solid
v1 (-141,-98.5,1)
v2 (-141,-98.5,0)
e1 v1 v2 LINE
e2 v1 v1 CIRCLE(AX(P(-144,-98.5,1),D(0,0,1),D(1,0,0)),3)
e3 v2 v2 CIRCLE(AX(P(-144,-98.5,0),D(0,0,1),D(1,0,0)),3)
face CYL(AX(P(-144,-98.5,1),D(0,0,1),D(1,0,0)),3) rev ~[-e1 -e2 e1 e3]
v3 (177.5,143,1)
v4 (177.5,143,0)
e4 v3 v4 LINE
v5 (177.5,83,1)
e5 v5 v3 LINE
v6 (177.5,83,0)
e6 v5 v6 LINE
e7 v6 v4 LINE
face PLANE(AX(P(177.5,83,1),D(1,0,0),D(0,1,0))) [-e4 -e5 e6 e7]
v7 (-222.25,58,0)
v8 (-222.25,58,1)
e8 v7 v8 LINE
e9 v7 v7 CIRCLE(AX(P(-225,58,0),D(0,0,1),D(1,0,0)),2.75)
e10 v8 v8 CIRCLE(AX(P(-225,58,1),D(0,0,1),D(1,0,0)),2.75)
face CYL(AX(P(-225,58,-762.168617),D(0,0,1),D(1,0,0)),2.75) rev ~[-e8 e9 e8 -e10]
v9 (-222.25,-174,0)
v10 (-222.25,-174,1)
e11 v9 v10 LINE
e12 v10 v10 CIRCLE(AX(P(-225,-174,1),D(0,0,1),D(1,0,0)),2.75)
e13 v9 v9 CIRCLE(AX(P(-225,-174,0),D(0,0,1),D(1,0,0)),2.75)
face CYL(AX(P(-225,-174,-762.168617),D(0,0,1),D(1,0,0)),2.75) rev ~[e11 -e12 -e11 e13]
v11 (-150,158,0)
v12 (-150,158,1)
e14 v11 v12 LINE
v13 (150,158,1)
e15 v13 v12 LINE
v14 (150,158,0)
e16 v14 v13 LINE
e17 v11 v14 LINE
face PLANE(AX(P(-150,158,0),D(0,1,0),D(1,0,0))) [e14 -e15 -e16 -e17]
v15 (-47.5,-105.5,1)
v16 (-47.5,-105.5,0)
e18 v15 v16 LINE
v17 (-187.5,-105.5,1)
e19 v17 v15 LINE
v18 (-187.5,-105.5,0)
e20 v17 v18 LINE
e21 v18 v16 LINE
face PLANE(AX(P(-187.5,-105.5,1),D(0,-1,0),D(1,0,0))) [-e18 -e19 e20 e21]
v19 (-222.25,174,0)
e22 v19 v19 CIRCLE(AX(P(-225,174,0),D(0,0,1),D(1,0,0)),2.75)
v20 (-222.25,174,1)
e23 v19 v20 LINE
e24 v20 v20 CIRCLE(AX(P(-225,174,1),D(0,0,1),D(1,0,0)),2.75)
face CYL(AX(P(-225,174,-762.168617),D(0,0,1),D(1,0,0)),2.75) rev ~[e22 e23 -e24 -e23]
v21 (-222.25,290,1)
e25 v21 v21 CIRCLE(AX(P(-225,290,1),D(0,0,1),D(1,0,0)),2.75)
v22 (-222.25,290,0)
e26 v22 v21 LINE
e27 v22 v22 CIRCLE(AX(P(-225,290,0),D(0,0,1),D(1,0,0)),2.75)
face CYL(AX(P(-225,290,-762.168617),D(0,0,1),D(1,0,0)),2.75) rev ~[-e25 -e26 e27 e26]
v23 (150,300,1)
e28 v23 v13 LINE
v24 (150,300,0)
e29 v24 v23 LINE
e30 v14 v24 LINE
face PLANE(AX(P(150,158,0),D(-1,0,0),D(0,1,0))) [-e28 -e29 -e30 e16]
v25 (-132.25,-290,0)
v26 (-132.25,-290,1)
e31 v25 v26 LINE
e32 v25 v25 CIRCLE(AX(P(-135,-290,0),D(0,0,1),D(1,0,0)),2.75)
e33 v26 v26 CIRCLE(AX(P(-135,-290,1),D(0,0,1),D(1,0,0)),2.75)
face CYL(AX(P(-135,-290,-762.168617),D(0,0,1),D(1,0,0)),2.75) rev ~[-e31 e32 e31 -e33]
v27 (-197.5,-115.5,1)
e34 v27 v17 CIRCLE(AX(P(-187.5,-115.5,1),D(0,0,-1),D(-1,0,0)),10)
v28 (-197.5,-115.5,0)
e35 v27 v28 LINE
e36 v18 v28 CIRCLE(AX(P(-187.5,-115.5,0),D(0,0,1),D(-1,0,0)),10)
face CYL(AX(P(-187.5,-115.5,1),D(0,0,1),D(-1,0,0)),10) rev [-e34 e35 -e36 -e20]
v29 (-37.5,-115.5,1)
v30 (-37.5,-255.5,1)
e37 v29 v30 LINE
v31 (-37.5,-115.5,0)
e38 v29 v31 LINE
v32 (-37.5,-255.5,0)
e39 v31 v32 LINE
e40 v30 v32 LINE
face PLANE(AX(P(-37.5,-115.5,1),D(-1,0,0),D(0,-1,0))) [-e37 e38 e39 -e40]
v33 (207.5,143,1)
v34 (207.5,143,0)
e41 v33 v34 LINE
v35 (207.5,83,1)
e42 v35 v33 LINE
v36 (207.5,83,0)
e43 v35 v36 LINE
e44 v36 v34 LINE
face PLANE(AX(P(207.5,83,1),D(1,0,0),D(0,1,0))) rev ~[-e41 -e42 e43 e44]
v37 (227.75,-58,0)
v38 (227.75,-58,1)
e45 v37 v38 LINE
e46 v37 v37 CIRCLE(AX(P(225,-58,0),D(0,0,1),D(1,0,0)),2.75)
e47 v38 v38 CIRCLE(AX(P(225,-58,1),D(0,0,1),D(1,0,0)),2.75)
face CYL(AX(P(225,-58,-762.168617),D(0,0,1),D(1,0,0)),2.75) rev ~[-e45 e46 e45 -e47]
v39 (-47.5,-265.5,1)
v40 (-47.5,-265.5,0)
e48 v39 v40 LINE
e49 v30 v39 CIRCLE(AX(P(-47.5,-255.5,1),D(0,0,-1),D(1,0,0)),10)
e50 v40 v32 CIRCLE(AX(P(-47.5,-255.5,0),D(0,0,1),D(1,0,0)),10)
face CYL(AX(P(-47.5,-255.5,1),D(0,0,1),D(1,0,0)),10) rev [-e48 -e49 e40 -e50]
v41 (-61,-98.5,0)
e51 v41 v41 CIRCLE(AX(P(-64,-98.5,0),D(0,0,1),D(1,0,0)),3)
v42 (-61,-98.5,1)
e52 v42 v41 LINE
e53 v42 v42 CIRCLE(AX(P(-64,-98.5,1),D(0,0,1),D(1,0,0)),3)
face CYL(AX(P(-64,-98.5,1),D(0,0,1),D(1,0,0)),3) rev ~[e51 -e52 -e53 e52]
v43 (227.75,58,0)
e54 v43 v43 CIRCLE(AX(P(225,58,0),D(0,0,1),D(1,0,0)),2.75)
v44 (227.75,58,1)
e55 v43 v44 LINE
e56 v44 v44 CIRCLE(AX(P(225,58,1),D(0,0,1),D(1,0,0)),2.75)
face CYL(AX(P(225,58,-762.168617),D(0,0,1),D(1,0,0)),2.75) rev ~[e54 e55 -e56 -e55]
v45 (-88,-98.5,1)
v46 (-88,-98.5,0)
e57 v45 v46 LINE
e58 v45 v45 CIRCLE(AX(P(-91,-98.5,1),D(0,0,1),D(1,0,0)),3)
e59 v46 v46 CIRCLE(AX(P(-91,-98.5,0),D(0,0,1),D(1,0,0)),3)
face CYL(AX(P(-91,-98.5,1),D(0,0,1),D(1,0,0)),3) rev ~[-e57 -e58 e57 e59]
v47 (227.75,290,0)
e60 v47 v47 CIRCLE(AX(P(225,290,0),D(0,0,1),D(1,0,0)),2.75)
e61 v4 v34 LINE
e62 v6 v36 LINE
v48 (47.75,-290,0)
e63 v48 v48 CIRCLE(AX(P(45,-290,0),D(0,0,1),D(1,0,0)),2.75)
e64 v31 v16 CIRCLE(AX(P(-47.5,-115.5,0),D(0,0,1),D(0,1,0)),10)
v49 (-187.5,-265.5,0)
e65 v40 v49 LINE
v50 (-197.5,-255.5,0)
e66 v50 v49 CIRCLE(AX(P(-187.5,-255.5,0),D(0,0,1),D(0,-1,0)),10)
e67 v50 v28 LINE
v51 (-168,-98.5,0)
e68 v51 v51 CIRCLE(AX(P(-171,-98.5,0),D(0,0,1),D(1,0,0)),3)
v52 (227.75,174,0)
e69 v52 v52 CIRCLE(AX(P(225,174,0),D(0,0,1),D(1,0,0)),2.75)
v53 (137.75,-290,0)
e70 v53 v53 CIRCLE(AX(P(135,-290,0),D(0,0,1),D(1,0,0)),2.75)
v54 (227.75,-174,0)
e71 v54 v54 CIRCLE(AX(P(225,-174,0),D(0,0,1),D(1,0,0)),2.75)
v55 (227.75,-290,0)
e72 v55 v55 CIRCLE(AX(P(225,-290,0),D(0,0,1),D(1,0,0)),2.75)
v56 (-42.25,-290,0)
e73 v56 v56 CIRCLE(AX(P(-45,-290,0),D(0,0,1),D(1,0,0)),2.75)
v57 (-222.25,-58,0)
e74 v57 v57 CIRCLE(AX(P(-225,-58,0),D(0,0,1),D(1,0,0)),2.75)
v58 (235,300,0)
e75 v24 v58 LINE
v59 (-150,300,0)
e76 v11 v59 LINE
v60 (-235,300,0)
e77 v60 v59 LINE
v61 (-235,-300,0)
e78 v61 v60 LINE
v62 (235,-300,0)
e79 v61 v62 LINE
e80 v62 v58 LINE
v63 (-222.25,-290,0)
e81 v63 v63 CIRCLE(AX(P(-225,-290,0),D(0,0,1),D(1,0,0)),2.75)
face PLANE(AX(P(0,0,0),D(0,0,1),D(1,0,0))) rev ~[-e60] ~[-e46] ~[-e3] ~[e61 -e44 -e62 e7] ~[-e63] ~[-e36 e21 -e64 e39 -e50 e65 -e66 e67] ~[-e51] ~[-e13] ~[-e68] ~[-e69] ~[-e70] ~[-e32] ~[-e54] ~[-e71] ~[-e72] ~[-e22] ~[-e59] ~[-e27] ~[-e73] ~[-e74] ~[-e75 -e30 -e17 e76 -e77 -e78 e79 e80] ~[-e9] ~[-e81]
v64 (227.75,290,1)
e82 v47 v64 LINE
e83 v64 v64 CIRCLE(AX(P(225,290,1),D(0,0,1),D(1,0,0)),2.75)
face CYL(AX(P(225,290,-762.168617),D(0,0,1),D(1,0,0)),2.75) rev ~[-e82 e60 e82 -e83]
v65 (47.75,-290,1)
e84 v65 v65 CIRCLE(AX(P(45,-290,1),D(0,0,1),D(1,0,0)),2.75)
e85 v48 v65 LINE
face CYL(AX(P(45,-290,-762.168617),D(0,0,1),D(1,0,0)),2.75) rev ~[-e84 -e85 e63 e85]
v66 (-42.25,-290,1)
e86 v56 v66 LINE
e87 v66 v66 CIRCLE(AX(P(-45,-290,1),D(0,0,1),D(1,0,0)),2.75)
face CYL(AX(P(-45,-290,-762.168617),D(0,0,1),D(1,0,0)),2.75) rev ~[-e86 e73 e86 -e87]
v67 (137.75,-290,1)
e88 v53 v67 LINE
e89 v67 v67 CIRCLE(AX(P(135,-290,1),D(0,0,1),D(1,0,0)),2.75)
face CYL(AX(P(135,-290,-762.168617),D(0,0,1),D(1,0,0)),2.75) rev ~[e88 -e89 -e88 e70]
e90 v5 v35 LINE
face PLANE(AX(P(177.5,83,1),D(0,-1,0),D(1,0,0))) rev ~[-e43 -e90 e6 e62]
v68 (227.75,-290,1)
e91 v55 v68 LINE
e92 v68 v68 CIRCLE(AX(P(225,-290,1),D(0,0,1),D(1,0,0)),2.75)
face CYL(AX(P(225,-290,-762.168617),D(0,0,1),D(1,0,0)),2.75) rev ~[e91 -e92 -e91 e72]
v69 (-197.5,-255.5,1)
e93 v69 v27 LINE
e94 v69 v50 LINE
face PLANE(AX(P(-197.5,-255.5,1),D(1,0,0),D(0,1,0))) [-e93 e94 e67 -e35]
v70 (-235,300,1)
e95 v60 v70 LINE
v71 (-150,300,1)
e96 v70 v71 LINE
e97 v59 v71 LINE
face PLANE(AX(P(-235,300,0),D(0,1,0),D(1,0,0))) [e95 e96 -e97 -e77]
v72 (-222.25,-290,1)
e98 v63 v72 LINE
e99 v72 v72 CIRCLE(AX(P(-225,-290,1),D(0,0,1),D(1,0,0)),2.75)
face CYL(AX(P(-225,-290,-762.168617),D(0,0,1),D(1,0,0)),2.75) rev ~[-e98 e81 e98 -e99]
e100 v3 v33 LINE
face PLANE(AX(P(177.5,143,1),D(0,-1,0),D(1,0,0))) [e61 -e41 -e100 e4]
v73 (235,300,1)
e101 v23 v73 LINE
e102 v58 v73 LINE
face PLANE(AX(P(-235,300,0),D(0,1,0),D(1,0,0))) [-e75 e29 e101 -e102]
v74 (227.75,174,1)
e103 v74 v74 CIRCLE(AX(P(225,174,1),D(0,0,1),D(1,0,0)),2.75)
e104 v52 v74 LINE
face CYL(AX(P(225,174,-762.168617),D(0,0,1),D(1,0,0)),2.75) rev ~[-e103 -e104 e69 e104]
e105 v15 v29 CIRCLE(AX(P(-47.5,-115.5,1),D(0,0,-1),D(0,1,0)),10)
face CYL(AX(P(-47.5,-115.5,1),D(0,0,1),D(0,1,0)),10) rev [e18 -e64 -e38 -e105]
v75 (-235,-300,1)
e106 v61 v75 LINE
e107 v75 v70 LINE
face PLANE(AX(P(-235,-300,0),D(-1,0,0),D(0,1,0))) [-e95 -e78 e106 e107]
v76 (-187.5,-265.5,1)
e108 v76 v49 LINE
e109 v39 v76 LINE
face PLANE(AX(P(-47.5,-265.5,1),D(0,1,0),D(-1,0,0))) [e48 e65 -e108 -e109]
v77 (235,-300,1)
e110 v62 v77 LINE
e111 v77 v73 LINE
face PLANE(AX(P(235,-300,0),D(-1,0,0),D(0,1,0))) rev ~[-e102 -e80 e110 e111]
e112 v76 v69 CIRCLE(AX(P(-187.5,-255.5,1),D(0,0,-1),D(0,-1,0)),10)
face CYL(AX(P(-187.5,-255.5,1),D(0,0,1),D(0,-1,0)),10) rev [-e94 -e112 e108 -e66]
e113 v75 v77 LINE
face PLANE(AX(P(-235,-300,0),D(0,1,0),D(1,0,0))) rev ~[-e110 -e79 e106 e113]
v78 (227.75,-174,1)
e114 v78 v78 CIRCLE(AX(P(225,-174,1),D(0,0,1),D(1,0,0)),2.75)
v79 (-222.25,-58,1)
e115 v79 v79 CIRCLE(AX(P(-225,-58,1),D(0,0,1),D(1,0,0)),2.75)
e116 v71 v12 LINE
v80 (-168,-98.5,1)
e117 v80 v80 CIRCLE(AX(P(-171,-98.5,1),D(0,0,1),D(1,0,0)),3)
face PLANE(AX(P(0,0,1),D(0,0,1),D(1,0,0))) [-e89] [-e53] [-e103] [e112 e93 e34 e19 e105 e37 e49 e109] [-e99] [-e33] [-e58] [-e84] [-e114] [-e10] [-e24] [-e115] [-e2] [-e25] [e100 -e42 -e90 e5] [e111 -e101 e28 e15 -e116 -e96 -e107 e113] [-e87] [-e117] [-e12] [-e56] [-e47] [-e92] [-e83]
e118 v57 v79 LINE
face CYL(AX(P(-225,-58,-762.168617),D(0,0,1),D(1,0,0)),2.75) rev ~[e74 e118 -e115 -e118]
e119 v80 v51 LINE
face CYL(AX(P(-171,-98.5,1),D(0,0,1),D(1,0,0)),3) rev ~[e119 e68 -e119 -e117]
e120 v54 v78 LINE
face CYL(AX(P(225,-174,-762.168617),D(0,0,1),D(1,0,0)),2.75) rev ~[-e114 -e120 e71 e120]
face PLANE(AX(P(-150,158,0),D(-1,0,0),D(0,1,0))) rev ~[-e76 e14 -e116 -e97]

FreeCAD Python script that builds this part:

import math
import FreeCAD as App
import Part
import Sketcher


def add_polygon(sketch, points):
    """Adds a closed chain of lines whose ends are joined by coincident constraints."""
    first, n = sketch.GeometryCount, len(points)
    for a, b in zip(points, points[1:] + points[:1]):
        sketch.addGeometry(Part.LineSegment(App.Vector(*a, 0), App.Vector(*b, 0)), False)
    for i in range(n):
        sketch.addConstraint(Sketcher.Constraint("Coincident", first + i, 2, first + (i + 1) % n, 1))

doc = App.newDocument("Part")
params = doc.addObject("Spreadsheet::Sheet", "Params")
for row, (alias, value) in enumerate([
    ("sketch1_width", "470 mm"),
    ("sketch1_height", "600 mm"),
    ("pad1_length", "1 mm"),
    ("sketch2_diameter", "5.5 mm"),
    ("hole_diameter", "5.5 mm"),
    ("sketch3_width", "300 mm"),
    ("sketch3_height", "142 mm"),
    ("pocket1_length", "10 mm"),
    ("sketch4_radius", "10 mm"),
    ("sketch4_width", "30 mm"),
    ("sketch4_width2", "140 mm"),
    ("sketch4_height", "60 mm"),
    ("pocket2_length", "10 mm"),
    ("sketch5_diameter", "6 mm"),
    ("pocket3_length", "10 mm"),
], start=1):
    params.set(f"A{row}", alias)
    params.set(f"B{row}", "=" + value)
    params.setAlias(f"B{row}", alias)

body = doc.addObject("PartDesign::Body", "Body")

sketch1 = body.newObject("Sketcher::SketchObject", "Sketch")
sketch1.AttachmentSupport = (doc.getObject("XY_Plane"), [""])
sketch1.MapMode = "FlatFace"
add_polygon(sketch1, [(-235, 300), (-235, -300), (235, -300), (235, 300)])
sketch1.addConstraint(Sketcher.Constraint("Vertical", 0))
sketch1.addConstraint(Sketcher.Constraint("Horizontal", 1))
sketch1.addConstraint(Sketcher.Constraint("Vertical", 2))
sketch1.addConstraint(Sketcher.Constraint("Horizontal", 3))
sketch1.addConstraint(Sketcher.Constraint("Symmetric", 0, 2, 2, 2, -1, 1))
sketch1.addConstraint(Sketcher.Constraint("DistanceX", 1, 1, 1, 2, 470.0))
sketch1.addConstraint(Sketcher.Constraint("DistanceY", 0, 2, 0, 1, 600.0))
sketch1.setExpression("Constraints[9]", "Params.sketch1_width")
sketch1.setExpression("Constraints[10]", "Params.sketch1_height")
pad1 = body.newObject("PartDesign::Pad", "Pad")
pad1.Profile = sketch1
pad1.setExpression("Length", "Params.pad1_length")

sketch2 = body.newObject("Sketcher::SketchObject", "Sketch001")
sketch2.AttachmentSupport = (doc.getObject("XY_Plane"), [""])
sketch2.MapMode = "FlatFace"
sketch2.addGeometry(Part.Circle(App.Vector(225, 290, 0), App.Vector(0, 0, 1), 2.8), False)
sketch2.addGeometry(Part.Circle(App.Vector(135, 290, 0), App.Vector(0, 0, 1), 2.8), False)
sketch2.addGeometry(Part.Circle(App.Vector(45, 290, 0), App.Vector(0, 0, 1), 2.8), False)
sketch2.addGeometry(Part.Circle(App.Vector(-45, 290, 0), App.Vector(0, 0, 1), 2.8), False)
sketch2.addGeometry(Part.Circle(App.Vector(-135, 290, 0), App.Vector(0, 0, 1), 2.8), False)
sketch2.addGeometry(Part.Circle(App.Vector(-225, 290, 0), App.Vector(0, 0, 1), 2.8), False)
sketch2.addGeometry(Part.Circle(App.Vector(-225, 174, 0), App.Vector(0, 0, 1), 2.8), False)
sketch2.addGeometry(Part.Circle(App.Vector(-225, 58, 0), App.Vector(0, 0, 1), 2.8), False)
sketch2.addGeometry(Part.Circle(App.Vector(-225, -58, 0), App.Vector(0, 0, 1), 2.8), False)
sketch2.addGeometry(Part.Circle(App.Vector(-225, -174, 0), App.Vector(0, 0, 1), 2.8), False)
sketch2.addGeometry(Part.Circle(App.Vector(-225, -290, 0), App.Vector(0, 0, 1), 2.8), False)
sketch2.addGeometry(Part.Circle(App.Vector(225, 174, 0), App.Vector(0, 0, 1), 2.8), False)
sketch2.addGeometry(Part.Circle(App.Vector(225, 58, 0), App.Vector(0, 0, 1), 2.8), False)
sketch2.addGeometry(Part.Circle(App.Vector(225, -58, 0), App.Vector(0, 0, 1), 2.8), False)
sketch2.addGeometry(Part.Circle(App.Vector(225, -174, 0), App.Vector(0, 0, 1), 2.8), False)
sketch2.addGeometry(Part.Circle(App.Vector(225, -290, 0), App.Vector(0, 0, 1), 2.8), False)
sketch2.addGeometry(Part.Circle(App.Vector(135, -290, 0), App.Vector(0, 0, 1), 2.8), False)
sketch2.addGeometry(Part.Circle(App.Vector(45, -290, 0), App.Vector(0, 0, 1), 2.8), False)
sketch2.addGeometry(Part.Circle(App.Vector(-45, -290, 0), App.Vector(0, 0, 1), 2.8), False)
sketch2.addGeometry(Part.Circle(App.Vector(-135, -290, 0), App.Vector(0, 0, 1), 2.8), False)
sketch2.addConstraint(Sketcher.Constraint("Equal", 0, 1))
sketch2.addConstraint(Sketcher.Constraint("Equal", 1, 2))
sketch2.addConstraint(Sketcher.Constraint("Equal", 2, 3))
sketch2.addConstraint(Sketcher.Constraint("Equal", 3, 4))
sketch2.addConstraint(Sketcher.Constraint("Equal", 4, 5))
sketch2.addConstraint(Sketcher.Constraint("Equal", 5, 6))
sketch2.addConstraint(Sketcher.Constraint("Equal", 6, 7))
sketch2.addConstraint(Sketcher.Constraint("Equal", 7, 8))
sketch2.addConstraint(Sketcher.Constraint("Equal", 8, 9))
sketch2.addConstraint(Sketcher.Constraint("Equal", 9, 10))
sketch2.addConstraint(Sketcher.Constraint("Equal", 10, 11))
sketch2.addConstraint(Sketcher.Constraint("Equal", 11, 12))
sketch2.addConstraint(Sketcher.Constraint("Equal", 12, 13))
sketch2.addConstraint(Sketcher.Constraint("Equal", 13, 14))
sketch2.addConstraint(Sketcher.Constraint("Equal", 14, 15))
sketch2.addConstraint(Sketcher.Constraint("Equal", 15, 16))
sketch2.addConstraint(Sketcher.Constraint("Equal", 16, 17))
sketch2.addConstraint(Sketcher.Constraint("Equal", 17, 18))
sketch2.addConstraint(Sketcher.Constraint("Equal", 18, 19))
sketch2.addConstraint(Sketcher.Constraint("Symmetric", 0, 3, 10, 3, -1, 1))
sketch2.addConstraint(Sketcher.Constraint("Symmetric", 9, 3, 11, 3, -1, 1))
sketch2.addConstraint(Sketcher.Constraint("Symmetric", 8, 3, 12, 3, -1, 1))
sketch2.addConstraint(Sketcher.Constraint("Symmetric", 7, 3, 13, 3, -1, 1))
sketch2.addConstraint(Sketcher.Constraint("Symmetric", 6, 3, 14, 3, -1, 1))
sketch2.addConstraint(Sketcher.Constraint("Symmetric", 5, 3, 15, 3, -1, 1))
sketch2.addConstraint(Sketcher.Constraint("Symmetric", 4, 3, 16, 3, -1, 1))
sketch2.addConstraint(Sketcher.Constraint("Symmetric", 3, 3, 17, 3, -1, 1))
sketch2.addConstraint(Sketcher.Constraint("Symmetric", 2, 3, 18, 3, -1, 1))
sketch2.addConstraint(Sketcher.Constraint("Symmetric", 1, 3, 19, 3, -1, 1))
sketch2.addConstraint(Sketcher.Constraint("Symmetric", 2, 3, 3, 3, -2))
sketch2.addConstraint(Sketcher.Constraint("Symmetric", 1, 3, 4, 3, -2))
sketch2.addConstraint(Sketcher.Constraint("Symmetric", 0, 3, 5, 3, -2))
sketch2.addConstraint(Sketcher.Constraint("Symmetric", 6, 3, 11, 3, -2))
sketch2.addConstraint(Sketcher.Constraint("Symmetric", 7, 3, 12, 3, -2))
sketch2.addConstraint(Sketcher.Constraint("Horizontal", 0, 3, 1, 3))
sketch2.addConstraint(Sketcher.Constraint("Horizontal", 1, 3, 2, 3))
sketch2.addConstraint(Sketcher.Constraint("Vertical", 5, 3, 6, 3))
sketch2.addConstraint(Sketcher.Constraint("Vertical", 6, 3, 7, 3))
sketch2.addConstraint(Sketcher.Constraint("Diameter", 0, 5.5))
sketch2.addConstraint(Sketcher.Constraint("DistanceX", -1, 1, 0, 3, 225.0))
sketch2.addConstraint(Sketcher.Constraint("DistanceY", -1, 1, 0, 3, 290.0))
sketch2.addConstraint(Sketcher.Constraint("DistanceX", -1, 1, 1, 3, 135.0))
sketch2.addConstraint(Sketcher.Constraint("DistanceX", -1, 1, 2, 3, 45.0))
sketch2.addConstraint(Sketcher.Constraint("DistanceY", -1, 1, 6, 3, 174.0))
sketch2.addConstraint(Sketcher.Constraint("DistanceY", -1, 1, 7, 3, 58.0))
sketch2.setExpression("Constraints[38]", "Params.sketch2_diameter")
doc.recompute()
hole = body.newObject("PartDesign::Hole", "Hole")
hole.Profile = sketch2
hole.ThreadType = "None"
hole.setExpression("Diameter", "Params.hole_diameter")
hole.DepthType = "ThroughAll"
hole.Reversed = True

sketch3 = body.newObject("Sketcher::SketchObject", "Sketch002")
sketch3.AttachmentSupport = (doc.getObject("XY_Plane"), [""])
sketch3.MapMode = "FlatFace"
add_polygon(sketch3, [(-150, 300), (-150, 158), (150, 158), (150, 300)])
sketch3.addConstraint(Sketcher.Constraint("Vertical", 0))
sketch3.addConstraint(Sketcher.Constraint("Horizontal", 1))
sketch3.addConstraint(Sketcher.Constraint("Vertical", 2))
sketch3.addConstraint(Sketcher.Constraint("Horizontal", 3))
sketch3.addConstraint(Sketcher.Constraint("DistanceX", 1, 1, 1, 2, 300.0))
sketch3.addConstraint(Sketcher.Constraint("DistanceY", 0, 2, 0, 1, 142.0))
sketch3.addConstraint(Sketcher.Constraint("DistanceX", 0, 2, -1, 1, 150.0))
sketch3.addConstraint(Sketcher.Constraint("DistanceY", -1, 1, 0, 2, 158.0))
sketch3.setExpression("Constraints[8]", "Params.sketch3_width")
sketch3.setExpression("Constraints[9]", "Params.sketch3_height")
pocket1 = body.newObject("PartDesign::Pocket", "Pocket")
pocket1.Profile = sketch3
pocket1.setExpression("Length", "Params.pocket1_length")
pocket1.Reversed = True

sketch4 = body.newObject("Sketcher::SketchObject", "Sketch003")
sketch4.AttachmentSupport = (doc.getObject("XY_Plane"), [""])
sketch4.MapMode = "FlatFace"
sketch4.AttachmentOffset = App.Placement(App.Vector(0, 0, 1), App.Rotation())
add_polygon(sketch4, [(178, 143), (178, 83), (208, 83), (208, 143)])
sketch4.addGeometry(Part.LineSegment(App.Vector(-48, -106, 0), App.Vector(-188, -106, 0)), False)
sketch4.addGeometry(Part.ArcOfCircle(Part.Circle(App.Vector(-188, -116, 0), App.Vector(0, 0, 1), 10), math.radians(90), math.radians(180)), False)
sketch4.addGeometry(Part.LineSegment(App.Vector(-198, -116, 0), App.Vector(-198, -256, 0)), False)
sketch4.addGeometry(Part.ArcOfCircle(Part.Circle(App.Vector(-188, -256, 0), App.Vector(0, 0, 1), 10), math.radians(180), math.radians(270)), False)
sketch4.addGeometry(Part.LineSegment(App.Vector(-188, -266, 0), App.Vector(-48, -266, 0)), False)
sketch4.addGeometry(Part.ArcOfCircle(Part.Circle(App.Vector(-48, -256, 0), App.Vector(0, 0, 1), 10), math.radians(-90), math.radians(0)), False)
sketch4.addGeometry(Part.LineSegment(App.Vector(-38, -256, 0), App.Vector(-38, -116, 0)), False)
sketch4.addGeometry(Part.ArcOfCircle(Part.Circle(App.Vector(-48, -116, 0), App.Vector(0, 0, 1), 10), math.radians(0), math.radians(90)), False)
sketch4.addConstraint(Sketcher.Constraint("Tangent", 4, 2, 5, 1))
sketch4.addConstraint(Sketcher.Constraint("Tangent", 5, 2, 6, 1))
sketch4.addConstraint(Sketcher.Constraint("Tangent", 6, 2, 7, 1))
sketch4.addConstraint(Sketcher.Constraint("Tangent", 7, 2, 8, 1))
sketch4.addConstraint(Sketcher.Constraint("Tangent", 8, 2, 9, 1))
sketch4.addConstraint(Sketcher.Constraint("Tangent", 9, 2, 10, 1))
sketch4.addConstraint(Sketcher.Constraint("Tangent", 10, 2, 11, 1))
sketch4.addConstraint(Sketcher.Constraint("Tangent", 11, 2, 4, 1))
sketch4.addConstraint(Sketcher.Constraint("Vertical", 0))
sketch4.addConstraint(Sketcher.Constraint("Horizontal", 1))
sketch4.addConstraint(Sketcher.Constraint("Vertical", 2))
sketch4.addConstraint(Sketcher.Constraint("Horizontal", 3))
sketch4.addConstraint(Sketcher.Constraint("Horizontal", 4))
sketch4.addConstraint(Sketcher.Constraint("Vertical", 6))
sketch4.addConstraint(Sketcher.Constraint("Horizontal", 8))
sketch4.addConstraint(Sketcher.Constraint("Vertical", 10))
sketch4.addConstraint(Sketcher.Constraint("Equal", 5, 7))
sketch4.addConstraint(Sketcher.Constraint("Equal", 7, 9))
sketch4.addConstraint(Sketcher.Constraint("Equal", 9, 11))
sketch4.addConstraint(Sketcher.Constraint("Equal", 8, 6))
sketch4.addConstraint(Sketcher.Constraint("Radius", 5, 10.0))
sketch4.addConstraint(Sketcher.Constraint("DistanceX", 1, 1, 1, 2, 30.0))
sketch4.addConstraint(Sketcher.Constraint("DistanceX", 4, 2, 4, 1, 140.0))
sketch4.addConstraint(Sketcher.Constraint("DistanceY", 0, 2, 0, 1, 60.0))
sketch4.addConstraint(Sketcher.Constraint("DistanceY", -1, 1, 0, 2, 83.0))
sketch4.addConstraint(Sketcher.Constraint("DistanceX", 11, 3, 0, 2, 225.0))
sketch4.addConstraint(Sketcher.Constraint("DistanceX", 5, 3, -1, 1, 187.5))
sketch4.addConstraint(Sketcher.Constraint("DistanceY", 5, 3, -1, 1, 115.5))
sketch4.setExpression("Constraints[24]", "Params.sketch4_radius")
sketch4.setExpression("Constraints[25]", "Params.sketch4_width")
sketch4.setExpression("Constraints[26]", "Params.sketch4_width2")
sketch4.setExpression("Constraints[27]", "Params.sketch4_height")
pocket2 = body.newObject("PartDesign::Pocket", "Pocket001")
pocket2.Profile = sketch4
pocket2.setExpression("Length", "Params.pocket2_length")

sketch5 = body.newObject("Sketcher::SketchObject", "Sketch004")
sketch5.AttachmentSupport = (doc.getObject("XY_Plane"), [""])
sketch5.MapMode = "FlatFace"
sketch5.AttachmentOffset = App.Placement(App.Vector(0, 0, 1), App.Rotation())
sketch5.addGeometry(Part.Circle(App.Vector(-171, -98.5, 0), App.Vector(0, 0, 1), 3), False)
sketch5.addGeometry(Part.Circle(App.Vector(-144, -98.5, 0), App.Vector(0, 0, 1), 3), False)
sketch5.addGeometry(Part.Circle(App.Vector(-91, -98.5, 0), App.Vector(0, 0, 1), 3), False)
sketch5.addGeometry(Part.Circle(App.Vector(-64, -98.5, 0), App.Vector(0, 0, 1), 3), False)
sketch5.addConstraint(Sketcher.Constraint("Equal", 0, 1))
sketch5.addConstraint(Sketcher.Constraint("Equal", 1, 2))
sketch5.addConstraint(Sketcher.Constraint("Equal", 2, 3))
sketch5.addConstraint(Sketcher.Constraint("Horizontal", 0, 3, 1, 3))
sketch5.addConstraint(Sketcher.Constraint("Horizontal", 1, 3, 2, 3))
sketch5.addConstraint(Sketcher.Constraint("Horizontal", 2, 3, 3, 3))
sketch5.addConstraint(Sketcher.Constraint("Diameter", 0, 6.0))
sketch5.addConstraint(Sketcher.Constraint("DistanceX", 0, 3, -1, 1, 171.0))
sketch5.addConstraint(Sketcher.Constraint("DistanceX", 1, 3, -1, 1, 144.0))
sketch5.addConstraint(Sketcher.Constraint("DistanceX", 2, 3, -1, 1, 91.0))
sketch5.addConstraint(Sketcher.Constraint("DistanceX", 3, 3, -1, 1, 64.0))
sketch5.addConstraint(Sketcher.Constraint("DistanceY", 0, 3, -1, 1, 98.5))
sketch5.setExpression("Constraints[6]", "Params.sketch5_diameter")
pocket3 = body.newObject("PartDesign::Pocket", "Pocket002")
pocket3.Profile = sketch5
pocket3.setExpression("Length", "Params.pocket3_length")

doc.recompute()
